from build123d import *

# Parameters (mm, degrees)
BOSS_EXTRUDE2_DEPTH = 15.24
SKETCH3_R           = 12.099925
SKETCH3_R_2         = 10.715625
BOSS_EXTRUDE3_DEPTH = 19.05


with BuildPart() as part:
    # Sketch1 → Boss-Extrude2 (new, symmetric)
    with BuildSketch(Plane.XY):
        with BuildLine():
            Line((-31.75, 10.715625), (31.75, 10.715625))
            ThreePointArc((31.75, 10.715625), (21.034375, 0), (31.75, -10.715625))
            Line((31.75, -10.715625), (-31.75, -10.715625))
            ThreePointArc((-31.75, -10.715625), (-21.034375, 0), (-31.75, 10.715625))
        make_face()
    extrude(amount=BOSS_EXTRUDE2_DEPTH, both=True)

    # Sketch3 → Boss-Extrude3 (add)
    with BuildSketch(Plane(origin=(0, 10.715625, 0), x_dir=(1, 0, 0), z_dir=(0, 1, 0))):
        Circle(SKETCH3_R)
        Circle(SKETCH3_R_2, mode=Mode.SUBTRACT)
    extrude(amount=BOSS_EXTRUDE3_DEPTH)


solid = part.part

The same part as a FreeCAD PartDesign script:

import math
import FreeCAD as App
import Part
import Sketcher
Q = App.Units.Quantity

doc = App.newDocument("Part")
params = doc.addObject("Spreadsheet::Sheet", "Params")
for row, (alias, value) in enumerate([
    ("sketch1_width", "2.5 in"),
    ("sketch1_radius", "0.421875 in"),
    ("pad1_length", "1.2 in"),
    ("sketch2_diameter", "0.84375 in"),
    ("pad2_length", "0.75 in"),
], start=1):
    params.set(f"A{row}", alias)
    params.set(f"B{row}", "=" + value)
    params.setAlias(f"B{row}", alias)

body = doc.addObject("PartDesign::Body", "Body")

# Sketch on XY plane
sketch1 = body.newObject("Sketcher::SketchObject", "Sketch")
sketch1.AttachmentSupport = (doc.getObject("XY_Plane"), [""])
sketch1.MapMode = "FlatFace"
sketch1.addGeometry(Part.LineSegment(App.Vector(31.75, 10.715625, 0), App.Vector(-31.75, 10.715625, 0)), False)
sketch1.addGeometry(Part.ArcOfCircle(Part.Circle(App.Vector(-31.75, 0, 0), App.Vector(0, 0, 1), 10.715625), math.radians(-90), math.radians(90)), False)
sketch1.addGeometry(Part.LineSegment(App.Vector(-31.75, -10.715625, 0), App.Vector(31.75, -10.715625, 0)), False)
sketch1.addGeometry(Part.ArcOfCircle(Part.Circle(App.Vector(31.75, 0, 0), App.Vector(0, 0, 1), 10.715625), math.radians(90), math.radians(270)), False)
sketch1.addConstraint(Sketcher.Constraint("Tangent", 0, 2, 1, 2))
sketch1.addConstraint(Sketcher.Constraint("Tangent", 1, 1, 2, 1))
sketch1.addConstraint(Sketcher.Constraint("Tangent", 2, 2, 3, 2))
sketch1.addConstraint(Sketcher.Constraint("Tangent", 3, 1, 0, 1))
sketch1.addConstraint(Sketcher.Constraint("Horizontal", 0))
sketch1.addConstraint(Sketcher.Constraint("Horizontal", 2))
sketch1.addConstraint(Sketcher.Constraint("Symmetric", 1, 3, 3, 3, -1, 1))
sketch1.addConstraint(Sketcher.Constraint("DistanceX", 0, 2, 0, 1, Q("2.5 in")))
sketch1.addConstraint(Sketcher.Constraint("Radius", 1, Q("0.421875 in")))
sketch1.setExpression("Constraints[7]", "Params.sketch1_width")
sketch1.setExpression("Constraints[8]", "Params.sketch1_radius")
pad1 = body.newObject("PartDesign::Pad", "Pad")
pad1.Profile = sketch1
pad1.setExpression("Length", "Params.pad1_length")
pad1.Midplane = True

# Sketch on XZ plane
sketch2 = body.newObject("Sketcher::SketchObject", "Sketch001")
sketch2.AttachmentSupport = (doc.getObject("XZ_Plane"), [""])
sketch2.MapMode = "FlatFace"
sketch2.AttachmentOffset = App.Placement(App.Vector(0, 0, -0.421875 * 25.4), App.Rotation())
sketch2.addGeometry(Part.Circle(App.Vector(0, 0, 0), App.Vector(0, 0, 1), 12.099925), False)
sketch2.addGeometry(Part.Circle(App.Vector(0, 0, 0), App.Vector(0, 0, 1), 10.715625), False)
sketch2.addConstraint(Sketcher.Constraint("Coincident", 0, 3, -1, 1))
sketch2.addConstraint(Sketcher.Constraint("Coincident", 1, 3, -1, 1))
sketch2.addConstraint(Sketcher.Constraint("Diameter", 1, Q("0.84375 in")))
sketch2.addConstraint(Sketcher.Constraint("Diameter", 0, Q("24.19985 mm")))
sketch2.setExpression("Constraints[2]", "Params.sketch2_diameter")
pad2 = body.newObject("PartDesign::Pad", "Pad001")
pad2.Profile = sketch2
pad2.setExpression("Length", "Params.pad2_length")
pad2.Reversed = True

doc.recompute()
